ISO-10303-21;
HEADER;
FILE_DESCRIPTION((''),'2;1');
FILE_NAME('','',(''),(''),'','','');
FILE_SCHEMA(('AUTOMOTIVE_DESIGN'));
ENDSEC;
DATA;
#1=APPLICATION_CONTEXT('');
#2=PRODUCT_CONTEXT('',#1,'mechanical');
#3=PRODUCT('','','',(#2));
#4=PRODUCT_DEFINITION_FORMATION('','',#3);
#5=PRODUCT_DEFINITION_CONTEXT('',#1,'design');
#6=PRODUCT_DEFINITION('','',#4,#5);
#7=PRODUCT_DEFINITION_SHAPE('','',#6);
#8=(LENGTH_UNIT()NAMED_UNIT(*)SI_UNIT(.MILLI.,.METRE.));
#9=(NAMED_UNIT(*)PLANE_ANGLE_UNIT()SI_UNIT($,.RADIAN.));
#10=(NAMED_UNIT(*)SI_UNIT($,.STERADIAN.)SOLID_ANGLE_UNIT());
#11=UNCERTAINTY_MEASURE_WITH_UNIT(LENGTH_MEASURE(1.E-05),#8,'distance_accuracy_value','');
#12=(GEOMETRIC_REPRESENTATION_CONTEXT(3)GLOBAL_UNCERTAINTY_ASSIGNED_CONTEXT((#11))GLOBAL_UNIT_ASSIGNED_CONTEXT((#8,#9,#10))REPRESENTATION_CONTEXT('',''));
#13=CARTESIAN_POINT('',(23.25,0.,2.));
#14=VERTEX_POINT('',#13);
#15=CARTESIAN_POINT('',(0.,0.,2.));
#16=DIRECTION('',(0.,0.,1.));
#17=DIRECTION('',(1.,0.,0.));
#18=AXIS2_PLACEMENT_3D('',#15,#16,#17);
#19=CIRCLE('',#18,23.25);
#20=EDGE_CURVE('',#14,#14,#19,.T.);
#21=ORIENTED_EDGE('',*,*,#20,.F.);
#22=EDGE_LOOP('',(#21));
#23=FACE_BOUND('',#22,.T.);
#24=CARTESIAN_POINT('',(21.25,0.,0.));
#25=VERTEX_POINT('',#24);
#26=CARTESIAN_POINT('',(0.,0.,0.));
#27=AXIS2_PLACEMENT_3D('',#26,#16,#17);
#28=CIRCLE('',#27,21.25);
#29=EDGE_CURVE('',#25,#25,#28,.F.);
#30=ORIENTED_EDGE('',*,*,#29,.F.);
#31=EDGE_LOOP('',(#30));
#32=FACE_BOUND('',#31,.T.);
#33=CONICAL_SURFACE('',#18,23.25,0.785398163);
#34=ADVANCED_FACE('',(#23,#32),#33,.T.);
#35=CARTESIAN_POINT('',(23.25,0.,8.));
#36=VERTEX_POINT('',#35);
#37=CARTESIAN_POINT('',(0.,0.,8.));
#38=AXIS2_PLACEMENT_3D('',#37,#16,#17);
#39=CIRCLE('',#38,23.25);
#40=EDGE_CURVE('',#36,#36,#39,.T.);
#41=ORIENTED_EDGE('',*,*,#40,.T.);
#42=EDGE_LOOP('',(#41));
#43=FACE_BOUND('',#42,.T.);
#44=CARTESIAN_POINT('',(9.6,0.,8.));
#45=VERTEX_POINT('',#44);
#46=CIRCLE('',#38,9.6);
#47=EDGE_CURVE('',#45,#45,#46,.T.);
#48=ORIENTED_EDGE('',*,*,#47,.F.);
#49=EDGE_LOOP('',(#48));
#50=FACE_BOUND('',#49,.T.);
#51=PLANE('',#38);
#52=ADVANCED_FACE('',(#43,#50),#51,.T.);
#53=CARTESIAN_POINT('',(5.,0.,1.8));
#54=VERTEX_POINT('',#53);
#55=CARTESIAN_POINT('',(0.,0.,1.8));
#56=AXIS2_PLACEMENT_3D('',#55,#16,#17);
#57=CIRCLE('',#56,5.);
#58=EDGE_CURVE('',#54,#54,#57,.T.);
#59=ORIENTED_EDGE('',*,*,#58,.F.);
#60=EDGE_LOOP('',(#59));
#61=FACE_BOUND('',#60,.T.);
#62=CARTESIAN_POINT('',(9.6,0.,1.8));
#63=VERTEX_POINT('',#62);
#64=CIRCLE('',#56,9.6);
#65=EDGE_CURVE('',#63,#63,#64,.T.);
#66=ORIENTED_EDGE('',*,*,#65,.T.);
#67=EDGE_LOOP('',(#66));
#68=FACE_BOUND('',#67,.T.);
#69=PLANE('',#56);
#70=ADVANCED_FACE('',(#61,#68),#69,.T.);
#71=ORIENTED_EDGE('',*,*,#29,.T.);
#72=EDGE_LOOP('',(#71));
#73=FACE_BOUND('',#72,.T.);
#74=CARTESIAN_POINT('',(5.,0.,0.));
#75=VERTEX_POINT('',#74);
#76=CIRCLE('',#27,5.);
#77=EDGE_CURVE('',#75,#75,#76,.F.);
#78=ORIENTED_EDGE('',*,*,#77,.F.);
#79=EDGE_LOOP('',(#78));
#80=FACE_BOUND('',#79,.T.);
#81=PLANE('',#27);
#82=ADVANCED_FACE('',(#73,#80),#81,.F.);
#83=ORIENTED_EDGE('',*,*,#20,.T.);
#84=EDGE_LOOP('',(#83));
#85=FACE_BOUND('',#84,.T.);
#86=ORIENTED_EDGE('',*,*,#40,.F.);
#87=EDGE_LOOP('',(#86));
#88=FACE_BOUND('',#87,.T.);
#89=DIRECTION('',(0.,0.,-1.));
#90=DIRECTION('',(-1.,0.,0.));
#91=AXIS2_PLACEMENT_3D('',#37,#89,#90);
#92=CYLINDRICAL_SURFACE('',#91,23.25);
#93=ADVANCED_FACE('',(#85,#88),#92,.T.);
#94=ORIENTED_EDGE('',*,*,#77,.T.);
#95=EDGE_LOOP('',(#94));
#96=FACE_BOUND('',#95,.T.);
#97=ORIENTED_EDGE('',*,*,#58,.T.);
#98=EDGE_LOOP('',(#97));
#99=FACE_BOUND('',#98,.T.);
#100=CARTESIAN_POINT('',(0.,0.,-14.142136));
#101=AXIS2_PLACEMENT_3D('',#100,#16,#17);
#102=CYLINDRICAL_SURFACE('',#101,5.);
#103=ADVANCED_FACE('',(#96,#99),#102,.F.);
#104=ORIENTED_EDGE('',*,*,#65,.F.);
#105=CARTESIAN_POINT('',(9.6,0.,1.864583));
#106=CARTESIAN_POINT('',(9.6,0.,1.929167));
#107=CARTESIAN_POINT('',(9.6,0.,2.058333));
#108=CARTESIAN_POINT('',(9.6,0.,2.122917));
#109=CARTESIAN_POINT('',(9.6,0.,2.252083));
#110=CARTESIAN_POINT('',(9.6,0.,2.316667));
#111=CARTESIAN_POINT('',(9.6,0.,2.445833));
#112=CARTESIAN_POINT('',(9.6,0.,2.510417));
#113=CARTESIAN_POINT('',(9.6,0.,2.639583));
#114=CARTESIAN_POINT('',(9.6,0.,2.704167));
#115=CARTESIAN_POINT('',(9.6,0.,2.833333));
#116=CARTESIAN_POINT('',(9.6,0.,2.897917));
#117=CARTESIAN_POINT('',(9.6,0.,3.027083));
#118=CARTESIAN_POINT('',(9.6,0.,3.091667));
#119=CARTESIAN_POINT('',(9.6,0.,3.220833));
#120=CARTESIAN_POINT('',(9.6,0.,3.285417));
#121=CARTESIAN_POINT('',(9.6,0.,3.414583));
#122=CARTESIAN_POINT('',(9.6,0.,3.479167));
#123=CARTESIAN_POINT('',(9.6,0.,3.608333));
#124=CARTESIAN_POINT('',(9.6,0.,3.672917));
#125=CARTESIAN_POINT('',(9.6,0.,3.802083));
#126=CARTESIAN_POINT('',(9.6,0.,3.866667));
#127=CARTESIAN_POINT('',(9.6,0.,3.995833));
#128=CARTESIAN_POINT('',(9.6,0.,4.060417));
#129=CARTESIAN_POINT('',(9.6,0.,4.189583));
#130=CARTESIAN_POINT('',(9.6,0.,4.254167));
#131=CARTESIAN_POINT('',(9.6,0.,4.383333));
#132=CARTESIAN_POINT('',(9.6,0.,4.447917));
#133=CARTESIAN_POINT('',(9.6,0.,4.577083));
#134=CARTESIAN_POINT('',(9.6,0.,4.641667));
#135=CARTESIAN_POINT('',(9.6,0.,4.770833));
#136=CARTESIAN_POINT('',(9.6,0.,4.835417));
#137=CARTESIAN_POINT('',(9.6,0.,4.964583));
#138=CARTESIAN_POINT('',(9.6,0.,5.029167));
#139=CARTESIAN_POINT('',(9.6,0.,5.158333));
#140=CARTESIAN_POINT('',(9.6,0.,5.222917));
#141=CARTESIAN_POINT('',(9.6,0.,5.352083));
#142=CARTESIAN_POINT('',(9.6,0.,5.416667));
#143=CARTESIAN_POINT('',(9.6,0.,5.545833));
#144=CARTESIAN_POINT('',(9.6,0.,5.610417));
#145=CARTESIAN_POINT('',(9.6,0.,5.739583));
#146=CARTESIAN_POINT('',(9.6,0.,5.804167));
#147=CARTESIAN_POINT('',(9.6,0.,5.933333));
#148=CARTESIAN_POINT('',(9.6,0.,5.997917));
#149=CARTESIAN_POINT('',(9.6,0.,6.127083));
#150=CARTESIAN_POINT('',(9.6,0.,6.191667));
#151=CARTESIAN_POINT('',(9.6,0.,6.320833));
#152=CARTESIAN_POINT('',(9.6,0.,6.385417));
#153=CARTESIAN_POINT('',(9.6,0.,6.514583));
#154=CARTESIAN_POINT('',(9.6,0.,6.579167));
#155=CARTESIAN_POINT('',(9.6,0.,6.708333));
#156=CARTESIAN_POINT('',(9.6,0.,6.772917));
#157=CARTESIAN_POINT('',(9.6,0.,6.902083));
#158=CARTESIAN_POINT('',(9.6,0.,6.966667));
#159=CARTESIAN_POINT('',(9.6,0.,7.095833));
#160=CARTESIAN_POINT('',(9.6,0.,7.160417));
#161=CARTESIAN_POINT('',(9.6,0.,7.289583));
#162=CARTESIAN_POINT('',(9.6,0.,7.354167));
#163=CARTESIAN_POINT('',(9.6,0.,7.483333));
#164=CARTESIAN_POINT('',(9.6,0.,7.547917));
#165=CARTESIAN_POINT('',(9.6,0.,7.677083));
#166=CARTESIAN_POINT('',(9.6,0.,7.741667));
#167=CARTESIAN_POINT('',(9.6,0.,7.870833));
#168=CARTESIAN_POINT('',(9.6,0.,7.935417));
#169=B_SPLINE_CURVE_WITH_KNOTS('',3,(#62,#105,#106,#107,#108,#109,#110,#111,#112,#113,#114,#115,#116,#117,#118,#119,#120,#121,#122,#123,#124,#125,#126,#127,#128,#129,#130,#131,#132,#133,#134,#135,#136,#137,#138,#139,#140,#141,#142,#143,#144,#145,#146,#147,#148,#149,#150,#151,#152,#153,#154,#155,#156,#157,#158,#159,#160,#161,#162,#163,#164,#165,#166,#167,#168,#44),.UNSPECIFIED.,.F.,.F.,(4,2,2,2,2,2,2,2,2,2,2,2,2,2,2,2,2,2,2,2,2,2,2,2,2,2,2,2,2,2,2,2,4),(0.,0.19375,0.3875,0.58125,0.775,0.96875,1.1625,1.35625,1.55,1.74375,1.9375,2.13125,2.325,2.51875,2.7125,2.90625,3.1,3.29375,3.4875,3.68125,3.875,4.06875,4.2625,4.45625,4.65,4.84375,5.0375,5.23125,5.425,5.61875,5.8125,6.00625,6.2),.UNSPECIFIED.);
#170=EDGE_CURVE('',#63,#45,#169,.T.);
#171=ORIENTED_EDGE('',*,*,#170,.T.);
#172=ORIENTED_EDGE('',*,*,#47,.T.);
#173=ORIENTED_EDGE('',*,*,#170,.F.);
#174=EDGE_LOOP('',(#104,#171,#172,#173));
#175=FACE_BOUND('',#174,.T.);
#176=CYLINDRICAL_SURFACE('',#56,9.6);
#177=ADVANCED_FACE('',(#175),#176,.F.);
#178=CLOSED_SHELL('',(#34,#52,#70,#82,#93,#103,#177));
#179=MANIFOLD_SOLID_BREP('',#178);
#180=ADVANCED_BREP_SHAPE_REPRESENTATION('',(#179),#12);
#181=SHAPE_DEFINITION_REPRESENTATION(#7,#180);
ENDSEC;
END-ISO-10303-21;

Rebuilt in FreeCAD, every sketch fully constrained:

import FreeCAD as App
import Part
import Sketcher

V = App.Vector
Q = App.Units.Quantity


def edges_at(feature, points):
    """Names of the edges that pass closest to the given points."""
    edges = feature.Shape.Edges
    near = lambda p: min(range(len(edges)), key=lambda i: edges[i].distToShape(Part.Vertex(*p))[0])
    return sorted({f"Edge{near(p) + 1}" for p in points})

doc = App.newDocument("Part")
body = doc.addObject("PartDesign::Body", "Body")

sketch1 = body.newObject("Sketcher::SketchObject", "Sketch")
sketch1.AttachmentSupport = (doc.getObject("XY_Plane"), [""])
sketch1.MapMode = "FlatFace"
sketch1.addGeometry(Part.Circle(V(0, 0, 0), V(0, 0, 1), 23), False)
sketch1.addConstraint([
    Sketcher.Constraint("Coincident", 0, 3, -1, 1),
    Sketcher.Constraint("Diameter", 0, Q("46.5 mm")),
])
pad1 = body.newObject("PartDesign::Pad", "Pad")
pad1.Profile = sketch1
pad1.Length = 8

sketch2 = body.newObject("Sketcher::SketchObject", "Sketch001")
sketch2.AttachmentSupport = (doc.getObject("XY_Plane"), [""])
sketch2.MapMode = "FlatFace"
sketch2.AttachmentOffset = App.Placement(V(0, 0, 8), App.Rotation())
sketch2.addGeometry(Part.Circle(V(0, 0, 0), V(0, 0, 1), 10), False)
sketch2.addConstraint([
    Sketcher.Constraint("Coincident", 0, 3, -1, 1),
    Sketcher.Constraint("Diameter", 0, Q("19.2 mm")),
])
pocket1 = body.newObject("PartDesign::Pocket", "Pocket")
pocket1.Profile = sketch2
pocket1.Length = 6.2

sketch3 = body.newObject("Sketcher::SketchObject", "Sketch002")
sketch3.AttachmentSupport = (doc.getObject("XY_Plane"), [""])
sketch3.MapMode = "FlatFace"
sketch3.AttachmentOffset = App.Placement(V(0, 0, 1.8), App.Rotation())
sketch3.addGeometry(Part.Circle(V(0, 0, 0), V(0, 0, 1), 5), False)
sketch3.addConstraint([
    Sketcher.Constraint("Coincident", 0, 3, -1, 1),
    Sketcher.Constraint("Diameter", 0, Q("10 mm")),
])
pocket2 = body.newObject("PartDesign::Pocket", "Pocket001")
pocket2.Profile = sketch3
pocket2.Length = 1.8
doc.recompute()

chamfer = body.newObject("PartDesign::Chamfer", "Chamfer")
chamfer.Base = (pocket2, edges_at(pocket2, [(-23.25, 0, 0)]))
chamfer.Size = 2

doc.recompute()
